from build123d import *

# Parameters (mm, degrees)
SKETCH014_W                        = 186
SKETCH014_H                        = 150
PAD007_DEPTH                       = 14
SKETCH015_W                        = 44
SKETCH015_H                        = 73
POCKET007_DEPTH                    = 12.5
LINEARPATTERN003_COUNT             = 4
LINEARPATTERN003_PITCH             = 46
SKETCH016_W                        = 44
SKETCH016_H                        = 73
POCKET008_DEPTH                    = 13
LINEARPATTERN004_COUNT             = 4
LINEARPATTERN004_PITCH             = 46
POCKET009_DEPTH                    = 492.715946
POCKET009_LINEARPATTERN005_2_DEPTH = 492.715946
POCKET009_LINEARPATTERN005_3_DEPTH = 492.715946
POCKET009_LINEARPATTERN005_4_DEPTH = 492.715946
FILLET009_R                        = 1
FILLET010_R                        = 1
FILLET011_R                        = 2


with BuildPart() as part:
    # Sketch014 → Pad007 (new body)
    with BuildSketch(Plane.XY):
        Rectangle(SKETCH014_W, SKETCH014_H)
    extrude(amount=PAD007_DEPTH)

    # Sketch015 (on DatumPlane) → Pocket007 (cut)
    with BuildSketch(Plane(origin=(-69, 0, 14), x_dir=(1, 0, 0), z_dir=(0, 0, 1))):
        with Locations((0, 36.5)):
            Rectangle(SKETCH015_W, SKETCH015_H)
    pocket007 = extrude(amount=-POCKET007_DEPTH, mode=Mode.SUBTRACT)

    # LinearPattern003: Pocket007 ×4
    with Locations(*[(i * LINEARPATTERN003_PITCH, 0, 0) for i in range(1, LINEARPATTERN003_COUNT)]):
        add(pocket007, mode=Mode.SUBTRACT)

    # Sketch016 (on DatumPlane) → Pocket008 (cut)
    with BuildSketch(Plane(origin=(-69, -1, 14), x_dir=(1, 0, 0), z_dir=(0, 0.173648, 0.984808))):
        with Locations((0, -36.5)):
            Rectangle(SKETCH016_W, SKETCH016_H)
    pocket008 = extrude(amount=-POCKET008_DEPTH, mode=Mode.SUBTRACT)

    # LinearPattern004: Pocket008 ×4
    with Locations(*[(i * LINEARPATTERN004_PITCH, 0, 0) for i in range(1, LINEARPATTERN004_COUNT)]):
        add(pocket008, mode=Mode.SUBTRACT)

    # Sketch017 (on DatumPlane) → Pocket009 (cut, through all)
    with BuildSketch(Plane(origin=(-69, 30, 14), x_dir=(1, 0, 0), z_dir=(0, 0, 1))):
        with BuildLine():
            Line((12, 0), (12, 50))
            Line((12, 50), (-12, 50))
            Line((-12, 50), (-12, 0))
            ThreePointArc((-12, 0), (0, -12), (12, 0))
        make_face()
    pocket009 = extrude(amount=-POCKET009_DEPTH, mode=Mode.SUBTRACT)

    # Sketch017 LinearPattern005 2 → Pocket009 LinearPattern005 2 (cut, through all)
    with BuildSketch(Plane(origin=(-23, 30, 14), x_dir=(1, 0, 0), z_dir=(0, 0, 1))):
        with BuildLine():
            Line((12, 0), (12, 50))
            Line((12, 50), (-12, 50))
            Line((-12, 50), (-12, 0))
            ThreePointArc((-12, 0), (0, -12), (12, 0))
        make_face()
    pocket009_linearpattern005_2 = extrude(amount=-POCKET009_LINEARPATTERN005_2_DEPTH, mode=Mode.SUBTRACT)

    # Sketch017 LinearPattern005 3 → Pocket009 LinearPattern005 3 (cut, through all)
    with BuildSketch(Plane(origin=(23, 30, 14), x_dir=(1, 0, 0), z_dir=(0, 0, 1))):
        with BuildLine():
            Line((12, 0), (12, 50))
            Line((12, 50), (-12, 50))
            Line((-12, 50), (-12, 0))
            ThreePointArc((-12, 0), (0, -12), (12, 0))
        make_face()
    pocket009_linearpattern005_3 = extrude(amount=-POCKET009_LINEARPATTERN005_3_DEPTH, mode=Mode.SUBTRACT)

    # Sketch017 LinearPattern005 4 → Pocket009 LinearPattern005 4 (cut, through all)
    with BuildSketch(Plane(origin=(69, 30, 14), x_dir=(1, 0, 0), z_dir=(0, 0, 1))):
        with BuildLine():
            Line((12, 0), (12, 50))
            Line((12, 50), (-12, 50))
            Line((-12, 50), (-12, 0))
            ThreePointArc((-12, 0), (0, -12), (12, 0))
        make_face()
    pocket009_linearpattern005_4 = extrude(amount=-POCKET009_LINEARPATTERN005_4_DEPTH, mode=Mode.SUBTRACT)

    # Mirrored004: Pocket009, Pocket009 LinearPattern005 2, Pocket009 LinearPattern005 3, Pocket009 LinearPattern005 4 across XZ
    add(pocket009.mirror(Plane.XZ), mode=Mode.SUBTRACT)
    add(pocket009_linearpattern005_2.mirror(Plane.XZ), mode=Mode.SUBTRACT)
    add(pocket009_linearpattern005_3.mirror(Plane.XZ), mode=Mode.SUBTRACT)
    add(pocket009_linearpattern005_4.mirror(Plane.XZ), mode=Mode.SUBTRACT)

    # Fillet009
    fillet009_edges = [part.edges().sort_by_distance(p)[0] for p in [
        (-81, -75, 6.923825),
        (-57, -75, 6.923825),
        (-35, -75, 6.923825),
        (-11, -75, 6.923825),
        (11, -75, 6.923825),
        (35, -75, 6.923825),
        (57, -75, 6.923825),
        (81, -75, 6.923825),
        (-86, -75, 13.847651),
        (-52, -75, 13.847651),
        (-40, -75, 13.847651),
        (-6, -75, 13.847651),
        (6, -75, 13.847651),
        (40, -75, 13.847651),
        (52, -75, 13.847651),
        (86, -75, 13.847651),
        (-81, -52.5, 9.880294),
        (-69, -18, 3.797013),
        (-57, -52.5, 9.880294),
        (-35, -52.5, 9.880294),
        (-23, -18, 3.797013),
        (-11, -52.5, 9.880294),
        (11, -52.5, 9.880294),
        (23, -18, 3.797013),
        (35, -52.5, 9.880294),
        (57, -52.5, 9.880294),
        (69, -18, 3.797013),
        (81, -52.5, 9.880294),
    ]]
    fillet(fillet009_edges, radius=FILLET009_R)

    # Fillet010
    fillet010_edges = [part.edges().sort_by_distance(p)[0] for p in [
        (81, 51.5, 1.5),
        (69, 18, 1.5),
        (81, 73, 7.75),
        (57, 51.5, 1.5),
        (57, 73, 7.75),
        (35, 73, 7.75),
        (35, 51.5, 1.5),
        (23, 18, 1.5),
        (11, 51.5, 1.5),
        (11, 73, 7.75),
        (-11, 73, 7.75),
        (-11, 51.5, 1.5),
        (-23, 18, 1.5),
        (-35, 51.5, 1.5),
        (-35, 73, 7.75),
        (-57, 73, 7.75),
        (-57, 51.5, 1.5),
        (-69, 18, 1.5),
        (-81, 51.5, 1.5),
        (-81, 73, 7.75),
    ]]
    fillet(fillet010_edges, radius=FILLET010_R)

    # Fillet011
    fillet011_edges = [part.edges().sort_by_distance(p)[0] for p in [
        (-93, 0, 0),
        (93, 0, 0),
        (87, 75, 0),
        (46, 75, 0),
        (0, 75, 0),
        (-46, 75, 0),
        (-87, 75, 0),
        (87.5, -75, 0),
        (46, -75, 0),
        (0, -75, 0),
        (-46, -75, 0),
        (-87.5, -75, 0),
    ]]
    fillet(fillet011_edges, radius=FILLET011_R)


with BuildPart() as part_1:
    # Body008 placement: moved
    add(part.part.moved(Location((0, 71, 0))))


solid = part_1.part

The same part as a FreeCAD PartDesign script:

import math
import FreeCAD as App
import Part
import Sketcher

V = App.Vector
Q = App.Units.Quantity


def edges_at(feature, points):
    """Names of the edges that pass closest to the given points."""
    edges = feature.Shape.Edges
    near = lambda p: min(range(len(edges)), key=lambda i: edges[i].distToShape(Part.Vertex(*p))[0])
    return sorted({f"Edge{near(p) + 1}" for p in points})


def add_polygon(sketch, points):
    """Adds a closed chain of lines whose ends are joined by coincident constraints."""
    first, n = sketch.GeometryCount, len(points)
    for a, b in zip(points, points[1:] + points[:1]):
        sketch.addGeometry(Part.LineSegment(App.Vector(*a, 0), App.Vector(*b, 0)), False)
    for i in range(n):
        sketch.addConstraint(Sketcher.Constraint("Coincident", first + i, 2, first + (i + 1) % n, 1))

doc = App.newDocument("Part")
body = doc.addObject("PartDesign::Body", "Body")

# Sketch on XY plane
sketch1 = doc.addObject("Sketcher::SketchObject", "Sketch")
body.addObject(sketch1)
sketch1.AttachmentSupport = (doc.XY_Plane, [""])
sketch1.MapMode = "FlatFace"
add_polygon(sketch1, [(-93, 75), (-93, -75), (93, -75), (93, 75)])  # lines 0-3
sketch1.addConstraint(Sketcher.Constraint("Vertical", 0))
sketch1.addConstraint(Sketcher.Constraint("Horizontal", 1))
sketch1.addConstraint(Sketcher.Constraint("Vertical", 2))
sketch1.addConstraint(Sketcher.Constraint("Horizontal", 3))
sketch1.addConstraint(Sketcher.Constraint("Symmetric", 0, 2, 2, 2, -1, 1))
sketch1.addConstraint(Sketcher.Constraint("DistanceX", 1, 1, 1, 2, Q("186 mm")))
sketch1.addConstraint(Sketcher.Constraint("DistanceY", 0, 2, 0, 1, Q("150 mm")))
pad1 = doc.addObject("PartDesign::Pad", "Pad")
body.addObject(pad1)
pad1.Profile = sketch1
pad1.Length = 14

# Sketch on XY plane
sketch2 = doc.addObject("Sketcher::SketchObject", "Sketch001")
body.addObject(sketch2)
sketch2.AttachmentSupport = (doc.XY_Plane, [""])
sketch2.MapMode = "FlatFace"
sketch2.AttachmentOffset = App.Placement(V(0, 0, 14), App.Rotation())
add_polygon(sketch2, [(-91, 73), (-91, 0), (-47, 0), (-47, 73)])  # lines 0-3
sketch2.addConstraint(Sketcher.Constraint("Vertical", 0))
sketch2.addConstraint(Sketcher.Constraint("Horizontal", 1))
sketch2.addConstraint(Sketcher.Constraint("Vertical", 2))
sketch2.addConstraint(Sketcher.Constraint("Horizontal", 3))
sketch2.addConstraint(Sketcher.Constraint("PointOnObject", 0, 2, -1))
sketch2.addConstraint(Sketcher.Constraint("DistanceX", 1, 1, 1, 2, Q("44 mm")))
sketch2.addConstraint(Sketcher.Constraint("DistanceY", 0, 2, 0, 1, Q("73 mm")))
sketch2.addConstraint(Sketcher.Constraint("DistanceX", 0, 2, -1, 1, Q("91 mm")))
pocket1 = doc.addObject("PartDesign::Pocket", "Pocket")
body.addObject(pocket1)
pocket1.Profile = sketch2
pocket1.Length = 12.5
doc.recompute()

linearpattern = doc.addObject("PartDesign::LinearPattern", "LinearPattern")
body.addObject(linearpattern)
linearpattern.Originals = [pocket1]
linearpattern.Direction = (doc.X_Axis, [""])
linearpattern.Mode = "offset"
linearpattern.Offset = 46
linearpattern.Occurrences = 4
body.Tip = linearpattern

# Sketch on an angled plane
sketch3 = doc.addObject("Sketcher::SketchObject", "Sketch002")
body.addObject(sketch3)
sketch3.Placement = App.Placement(V(-69, -1, 14), App.Rotation(V(1, 0, 0), V(0, 0.984807791, -0.173647963), V(0, 0.173647963, 0.984807791), "ZXY"))
add_polygon(sketch3, [(-22, 0), (-22, -73), (22, -73), (22, 0)])  # lines 0-3
sketch3.addConstraint(Sketcher.Constraint("Vertical", 0))
sketch3.addConstraint(Sketcher.Constraint("Horizontal", 1))
sketch3.addConstraint(Sketcher.Constraint("Vertical", 2))
sketch3.addConstraint(Sketcher.Constraint("Horizontal", 3))
sketch3.addConstraint(Sketcher.Constraint("Symmetric", 2, 2, 3, 2, -1, 1))
sketch3.addConstraint(Sketcher.Constraint("DistanceX", 1, 1, 1, 2, Q("44 mm")))
sketch3.addConstraint(Sketcher.Constraint("DistanceY", 0, 2, 0, 1, Q("73 mm")))
pocket2 = doc.addObject("PartDesign::Pocket", "Pocket001")
body.addObject(pocket2)
pocket2.Profile = sketch3
pocket2.Length = 13
doc.recompute()

linearpattern2 = doc.addObject("PartDesign::LinearPattern", "LinearPattern001")
body.addObject(linearpattern2)
linearpattern2.Originals = [pocket2]
linearpattern2.Direction = (doc.X_Axis, [""])
linearpattern2.Mode = "offset"
linearpattern2.Offset = 46
linearpattern2.Occurrences = 4
body.Tip = linearpattern2

# Sketch on XY plane
sketch4 = doc.addObject("Sketcher::SketchObject", "Sketch003")
body.addObject(sketch4)
sketch4.AttachmentSupport = (doc.XY_Plane, [""])
sketch4.MapMode = "FlatFace"
sketch4.AttachmentOffset = App.Placement(V(0, 0, 14), App.Rotation())
sketch4.addGeometry(Part.LineSegment(V(-57, 30, 0), V(-57, 80, 0)), False)
sketch4.addGeometry(Part.LineSegment(V(-57, 80, 0), V(-81, 80, 0)), False)
sketch4.addGeometry(Part.LineSegment(V(-81, 80, 0), V(-81, 30, 0)), False)
sketch4.addGeometry(Part.ArcOfCircle(Part.Circle(V(-69, 30, 0), V(0, 0, 1), 12), math.radians(180), math.radians(360)), False)
sketch4.addConstraint(Sketcher.Constraint("Coincident", 0, 2, 1, 1))
sketch4.addConstraint(Sketcher.Constraint("Coincident", 1, 2, 2, 1))
sketch4.addConstraint(Sketcher.Constraint("Tangent", 2, 2, 3, 1))
sketch4.addConstraint(Sketcher.Constraint("Tangent", 3, 2, 0, 1))
sketch4.addConstraint(Sketcher.Constraint("Vertical", 0))
sketch4.addConstraint(Sketcher.Constraint("Horizontal", 1))
sketch4.addConstraint(Sketcher.Constraint("Vertical", 2))
sketch4.addConstraint(Sketcher.Constraint("Radius", 3, Q("12 mm")))
sketch4.addConstraint(Sketcher.Constraint("DistanceY", 0, 1, 0, 2, Q("50 mm")))
sketch4.addConstraint(Sketcher.Constraint("DistanceX", 3, 3, -1, 1, Q("69 mm")))
sketch4.addConstraint(Sketcher.Constraint("DistanceY", -1, 1, 3, 3, Q("30 mm")))
pocket3 = doc.addObject("PartDesign::Pocket", "Pocket002")
body.addObject(pocket3)
pocket3.Profile = sketch4
pocket3.Type = "ThroughAll"

# Sketch on XY plane
sketch5 = doc.addObject("Sketcher::SketchObject", "Sketch004")
body.addObject(sketch5)
sketch5.AttachmentSupport = (doc.XY_Plane, [""])
sketch5.MapMode = "FlatFace"
sketch5.AttachmentOffset = App.Placement(V(0, 0, 14), App.Rotation())
sketch5.addGeometry(Part.LineSegment(V(-11, 30, 0), V(-11, 80, 0)), False)
sketch5.addGeometry(Part.LineSegment(V(-11, 80, 0), V(-35, 80, 0)), False)
sketch5.addGeometry(Part.LineSegment(V(-35, 80, 0), V(-35, 30, 0)), False)
sketch5.addGeometry(Part.ArcOfCircle(Part.Circle(V(-23, 30, 0), V(0, 0, 1), 12), math.radians(180), math.radians(360)), False)
sketch5.addConstraint(Sketcher.Constraint("Coincident", 0, 2, 1, 1))
sketch5.addConstraint(Sketcher.Constraint("Coincident", 1, 2, 2, 1))
sketch5.addConstraint(Sketcher.Constraint("Tangent", 2, 2, 3, 1))
sketch5.addConstraint(Sketcher.Constraint("Tangent", 3, 2, 0, 1))
sketch5.addConstraint(Sketcher.Constraint("Vertical", 0))
sketch5.addConstraint(Sketcher.Constraint("Horizontal", 1))
sketch5.addConstraint(Sketcher.Constraint("Vertical", 2))
sketch5.addConstraint(Sketcher.Constraint("Radius", 3, Q("12 mm")))
sketch5.addConstraint(Sketcher.Constraint("DistanceY", 0, 1, 0, 2, Q("50 mm")))
sketch5.addConstraint(Sketcher.Constraint("DistanceX", 3, 3, -1, 1, Q("23 mm")))
sketch5.addConstraint(Sketcher.Constraint("DistanceY", -1, 1, 3, 3, Q("30 mm")))
pocket4 = doc.addObject("PartDesign::Pocket", "Pocket003")
body.addObject(pocket4)
pocket4.Profile = sketch5
pocket4.Type = "ThroughAll"

# Sketch on XY plane
sketch6 = doc.addObject("Sketcher::SketchObject", "Sketch005")
body.addObject(sketch6)
sketch6.AttachmentSupport = (doc.XY_Plane, [""])
sketch6.MapMode = "FlatFace"
sketch6.AttachmentOffset = App.Placement(V(0, 0, 14), App.Rotation())
sketch6.addGeometry(Part.LineSegment(V(35, 30, 0), V(35, 80, 0)), False)
sketch6.addGeometry(Part.LineSegment(V(35, 80, 0), V(11, 80, 0)), False)
sketch6.addGeometry(Part.LineSegment(V(11, 80, 0), V(11, 30, 0)), False)
sketch6.addGeometry(Part.ArcOfCircle(Part.Circle(V(23, 30, 0), V(0, 0, 1), 12), math.radians(180), math.radians(360)), False)
sketch6.addConstraint(Sketcher.Constraint("Coincident", 0, 2, 1, 1))
sketch6.addConstraint(Sketcher.Constraint("Coincident", 1, 2, 2, 1))
sketch6.addConstraint(Sketcher.Constraint("Tangent", 2, 2, 3, 1))
sketch6.addConstraint(Sketcher.Constraint("Tangent", 3, 2, 0, 1))
sketch6.addConstraint(Sketcher.Constraint("Vertical", 0))
sketch6.addConstraint(Sketcher.Constraint("Horizontal", 1))
sketch6.addConstraint(Sketcher.Constraint("Vertical", 2))
sketch6.addConstraint(Sketcher.Constraint("Radius", 3, Q("12 mm")))
sketch6.addConstraint(Sketcher.Constraint("DistanceY", 0, 1, 0, 2, Q("50 mm")))
sketch6.addConstraint(Sketcher.Constraint("DistanceX", -1, 1, 3, 3, Q("23 mm")))
sketch6.addConstraint(Sketcher.Constraint("DistanceY", -1, 1, 3, 3, Q("30 mm")))
pocket5 = doc.addObject("PartDesign::Pocket", "Pocket004")
body.addObject(pocket5)
pocket5.Profile = sketch6
pocket5.Type = "ThroughAll"

# Sketch on XY plane
sketch7 = doc.addObject("Sketcher::SketchObject", "Sketch006")
body.addObject(sketch7)
sketch7.AttachmentSupport = (doc.XY_Plane, [""])
sketch7.MapMode = "FlatFace"
sketch7.AttachmentOffset = App.Placement(V(0, 0, 14), App.Rotation())
sketch7.addGeometry(Part.LineSegment(V(81, 30, 0), V(81, 80, 0)), False)
sketch7.addGeometry(Part.LineSegment(V(81, 80, 0), V(57, 80, 0)), False)
sketch7.addGeometry(Part.LineSegment(V(57, 80, 0), V(57, 30, 0)), False)
sketch7.addGeometry(Part.ArcOfCircle(Part.Circle(V(69, 30, 0), V(0, 0, 1), 12), math.radians(180), math.radians(360)), False)
sketch7.addConstraint(Sketcher.Constraint("Coincident", 0, 2, 1, 1))
sketch7.addConstraint(Sketcher.Constraint("Coincident", 1, 2, 2, 1))
sketch7.addConstraint(Sketcher.Constraint("Tangent", 2, 2, 3, 1))
sketch7.addConstraint(Sketcher.Constraint("Tangent", 3, 2, 0, 1))
sketch7.addConstraint(Sketcher.Constraint("Vertical", 0))
sketch7.addConstraint(Sketcher.Constraint("Horizontal", 1))
sketch7.addConstraint(Sketcher.Constraint("Vertical", 2))
sketch7.addConstraint(Sketcher.Constraint("Radius", 3, Q("12 mm")))
sketch7.addConstraint(Sketcher.Constraint("DistanceY", 0, 1, 0, 2, Q("50 mm")))
sketch7.addConstraint(Sketcher.Constraint("DistanceX", -1, 1, 3, 3, Q("69 mm")))
sketch7.addConstraint(Sketcher.Constraint("DistanceY", -1, 1, 3, 3, Q("30 mm")))
pocket6 = doc.addObject("PartDesign::Pocket", "Pocket005")
body.addObject(pocket6)
pocket6.Profile = sketch7
pocket6.Type = "ThroughAll"
doc.recompute()

mirrored = doc.addObject("PartDesign::Mirrored", "Mirrored")
body.addObject(mirrored)
mirrored.Originals = [pocket3, pocket4, pocket5, pocket6]
mirrored.MirrorPlane = (doc.XZ_Plane, [""])
body.Tip = mirrored
doc.recompute()

fillet = doc.addObject("PartDesign::Fillet", "Fillet")
body.addObject(fillet)
fillet.Base = (mirrored, edges_at(mirrored, [
    (-81, -75, 6.924),
    (-57, -75, 6.924),
    (-35, -75, 6.924),
    (-11, -75, 6.924),
    (11, -75, 6.924),
    (35, -75, 6.924),
    (57, -75, 6.924),
    (81, -75, 6.924),
    (-86, -75, 13.848),
    (-52, -75, 13.848),
    (-40, -75, 13.848),
    (-6, -75, 13.848),
    (6, -75, 13.848),
    (40, -75, 13.848),
    (52, -75, 13.848),
    (86, -75, 13.848),
    (-81, -52.5, 9.88),
    (-69, -18, 3.797),
    (-57, -52.5, 9.88),
    (-35, -52.5, 9.88),
    (-23, -18, 3.797),
    (-11, -52.5, 9.88),
    (11, -52.5, 9.88),
    (23, -18, 3.797),
    (35, -52.5, 9.88),
    (57, -52.5, 9.88),
    (69, -18, 3.797),
    (81, -52.5, 9.88),
]))
fillet.Radius = 1
doc.recompute()

fillet2 = doc.addObject("PartDesign::Fillet", "Fillet001")
body.addObject(fillet2)
fillet2.Base = (fillet, edges_at(fillet, [
    (81, 51.5, 1.5),
    (69, 18, 1.5),
    (81, 73, 7.75),
    (57, 51.5, 1.5),
    (57, 73, 7.75),
    (35, 73, 7.75),
    (35, 51.5, 1.5),
    (23, 18, 1.5),
    (11, 51.5, 1.5),
    (11, 73, 7.75),
    (-11, 73, 7.75),
    (-11, 51.5, 1.5),
    (-23, 18, 1.5),
    (-35, 51.5, 1.5),
    (-35, 73, 7.75),
    (-57, 73, 7.75),
    (-57, 51.5, 1.5),
    (-69, 18, 1.5),
    (-81, 51.5, 1.5),
    (-81, 73, 7.75),
]))
fillet2.Radius = 1
doc.recompute()

fillet3 = doc.addObject("PartDesign::Fillet", "Fillet002")
body.addObject(fillet3)
fillet3.Base = (fillet2, edges_at(fillet2, [
    (-93, 0, 0),
    (93, 0, 0),
    (87, 75, 0),
    (46, 75, 0),
    (0, 75, 0),
    (-46, 75, 0),
    (-87, 75, 0),
    (87.5, -75, 0),
    (46, -75, 0),
    (0, -75, 0),
    (-46, -75, 0),
    (-87.5, -75, 0),
]))
fillet3.Radius = 2
body2 = doc.addObject("PartDesign::Body", "Body001")
doc.recompute()

body.Placement = App.Placement(V(0, 71, 0), App.Rotation(V(0, 0, 1), 0))
boolean = doc.addObject("PartDesign::Boolean", "Boolean")
body2.addObject(boolean)
boolean.Type = "Fuse"
boolean.addObjects([body])

doc.recompute()
